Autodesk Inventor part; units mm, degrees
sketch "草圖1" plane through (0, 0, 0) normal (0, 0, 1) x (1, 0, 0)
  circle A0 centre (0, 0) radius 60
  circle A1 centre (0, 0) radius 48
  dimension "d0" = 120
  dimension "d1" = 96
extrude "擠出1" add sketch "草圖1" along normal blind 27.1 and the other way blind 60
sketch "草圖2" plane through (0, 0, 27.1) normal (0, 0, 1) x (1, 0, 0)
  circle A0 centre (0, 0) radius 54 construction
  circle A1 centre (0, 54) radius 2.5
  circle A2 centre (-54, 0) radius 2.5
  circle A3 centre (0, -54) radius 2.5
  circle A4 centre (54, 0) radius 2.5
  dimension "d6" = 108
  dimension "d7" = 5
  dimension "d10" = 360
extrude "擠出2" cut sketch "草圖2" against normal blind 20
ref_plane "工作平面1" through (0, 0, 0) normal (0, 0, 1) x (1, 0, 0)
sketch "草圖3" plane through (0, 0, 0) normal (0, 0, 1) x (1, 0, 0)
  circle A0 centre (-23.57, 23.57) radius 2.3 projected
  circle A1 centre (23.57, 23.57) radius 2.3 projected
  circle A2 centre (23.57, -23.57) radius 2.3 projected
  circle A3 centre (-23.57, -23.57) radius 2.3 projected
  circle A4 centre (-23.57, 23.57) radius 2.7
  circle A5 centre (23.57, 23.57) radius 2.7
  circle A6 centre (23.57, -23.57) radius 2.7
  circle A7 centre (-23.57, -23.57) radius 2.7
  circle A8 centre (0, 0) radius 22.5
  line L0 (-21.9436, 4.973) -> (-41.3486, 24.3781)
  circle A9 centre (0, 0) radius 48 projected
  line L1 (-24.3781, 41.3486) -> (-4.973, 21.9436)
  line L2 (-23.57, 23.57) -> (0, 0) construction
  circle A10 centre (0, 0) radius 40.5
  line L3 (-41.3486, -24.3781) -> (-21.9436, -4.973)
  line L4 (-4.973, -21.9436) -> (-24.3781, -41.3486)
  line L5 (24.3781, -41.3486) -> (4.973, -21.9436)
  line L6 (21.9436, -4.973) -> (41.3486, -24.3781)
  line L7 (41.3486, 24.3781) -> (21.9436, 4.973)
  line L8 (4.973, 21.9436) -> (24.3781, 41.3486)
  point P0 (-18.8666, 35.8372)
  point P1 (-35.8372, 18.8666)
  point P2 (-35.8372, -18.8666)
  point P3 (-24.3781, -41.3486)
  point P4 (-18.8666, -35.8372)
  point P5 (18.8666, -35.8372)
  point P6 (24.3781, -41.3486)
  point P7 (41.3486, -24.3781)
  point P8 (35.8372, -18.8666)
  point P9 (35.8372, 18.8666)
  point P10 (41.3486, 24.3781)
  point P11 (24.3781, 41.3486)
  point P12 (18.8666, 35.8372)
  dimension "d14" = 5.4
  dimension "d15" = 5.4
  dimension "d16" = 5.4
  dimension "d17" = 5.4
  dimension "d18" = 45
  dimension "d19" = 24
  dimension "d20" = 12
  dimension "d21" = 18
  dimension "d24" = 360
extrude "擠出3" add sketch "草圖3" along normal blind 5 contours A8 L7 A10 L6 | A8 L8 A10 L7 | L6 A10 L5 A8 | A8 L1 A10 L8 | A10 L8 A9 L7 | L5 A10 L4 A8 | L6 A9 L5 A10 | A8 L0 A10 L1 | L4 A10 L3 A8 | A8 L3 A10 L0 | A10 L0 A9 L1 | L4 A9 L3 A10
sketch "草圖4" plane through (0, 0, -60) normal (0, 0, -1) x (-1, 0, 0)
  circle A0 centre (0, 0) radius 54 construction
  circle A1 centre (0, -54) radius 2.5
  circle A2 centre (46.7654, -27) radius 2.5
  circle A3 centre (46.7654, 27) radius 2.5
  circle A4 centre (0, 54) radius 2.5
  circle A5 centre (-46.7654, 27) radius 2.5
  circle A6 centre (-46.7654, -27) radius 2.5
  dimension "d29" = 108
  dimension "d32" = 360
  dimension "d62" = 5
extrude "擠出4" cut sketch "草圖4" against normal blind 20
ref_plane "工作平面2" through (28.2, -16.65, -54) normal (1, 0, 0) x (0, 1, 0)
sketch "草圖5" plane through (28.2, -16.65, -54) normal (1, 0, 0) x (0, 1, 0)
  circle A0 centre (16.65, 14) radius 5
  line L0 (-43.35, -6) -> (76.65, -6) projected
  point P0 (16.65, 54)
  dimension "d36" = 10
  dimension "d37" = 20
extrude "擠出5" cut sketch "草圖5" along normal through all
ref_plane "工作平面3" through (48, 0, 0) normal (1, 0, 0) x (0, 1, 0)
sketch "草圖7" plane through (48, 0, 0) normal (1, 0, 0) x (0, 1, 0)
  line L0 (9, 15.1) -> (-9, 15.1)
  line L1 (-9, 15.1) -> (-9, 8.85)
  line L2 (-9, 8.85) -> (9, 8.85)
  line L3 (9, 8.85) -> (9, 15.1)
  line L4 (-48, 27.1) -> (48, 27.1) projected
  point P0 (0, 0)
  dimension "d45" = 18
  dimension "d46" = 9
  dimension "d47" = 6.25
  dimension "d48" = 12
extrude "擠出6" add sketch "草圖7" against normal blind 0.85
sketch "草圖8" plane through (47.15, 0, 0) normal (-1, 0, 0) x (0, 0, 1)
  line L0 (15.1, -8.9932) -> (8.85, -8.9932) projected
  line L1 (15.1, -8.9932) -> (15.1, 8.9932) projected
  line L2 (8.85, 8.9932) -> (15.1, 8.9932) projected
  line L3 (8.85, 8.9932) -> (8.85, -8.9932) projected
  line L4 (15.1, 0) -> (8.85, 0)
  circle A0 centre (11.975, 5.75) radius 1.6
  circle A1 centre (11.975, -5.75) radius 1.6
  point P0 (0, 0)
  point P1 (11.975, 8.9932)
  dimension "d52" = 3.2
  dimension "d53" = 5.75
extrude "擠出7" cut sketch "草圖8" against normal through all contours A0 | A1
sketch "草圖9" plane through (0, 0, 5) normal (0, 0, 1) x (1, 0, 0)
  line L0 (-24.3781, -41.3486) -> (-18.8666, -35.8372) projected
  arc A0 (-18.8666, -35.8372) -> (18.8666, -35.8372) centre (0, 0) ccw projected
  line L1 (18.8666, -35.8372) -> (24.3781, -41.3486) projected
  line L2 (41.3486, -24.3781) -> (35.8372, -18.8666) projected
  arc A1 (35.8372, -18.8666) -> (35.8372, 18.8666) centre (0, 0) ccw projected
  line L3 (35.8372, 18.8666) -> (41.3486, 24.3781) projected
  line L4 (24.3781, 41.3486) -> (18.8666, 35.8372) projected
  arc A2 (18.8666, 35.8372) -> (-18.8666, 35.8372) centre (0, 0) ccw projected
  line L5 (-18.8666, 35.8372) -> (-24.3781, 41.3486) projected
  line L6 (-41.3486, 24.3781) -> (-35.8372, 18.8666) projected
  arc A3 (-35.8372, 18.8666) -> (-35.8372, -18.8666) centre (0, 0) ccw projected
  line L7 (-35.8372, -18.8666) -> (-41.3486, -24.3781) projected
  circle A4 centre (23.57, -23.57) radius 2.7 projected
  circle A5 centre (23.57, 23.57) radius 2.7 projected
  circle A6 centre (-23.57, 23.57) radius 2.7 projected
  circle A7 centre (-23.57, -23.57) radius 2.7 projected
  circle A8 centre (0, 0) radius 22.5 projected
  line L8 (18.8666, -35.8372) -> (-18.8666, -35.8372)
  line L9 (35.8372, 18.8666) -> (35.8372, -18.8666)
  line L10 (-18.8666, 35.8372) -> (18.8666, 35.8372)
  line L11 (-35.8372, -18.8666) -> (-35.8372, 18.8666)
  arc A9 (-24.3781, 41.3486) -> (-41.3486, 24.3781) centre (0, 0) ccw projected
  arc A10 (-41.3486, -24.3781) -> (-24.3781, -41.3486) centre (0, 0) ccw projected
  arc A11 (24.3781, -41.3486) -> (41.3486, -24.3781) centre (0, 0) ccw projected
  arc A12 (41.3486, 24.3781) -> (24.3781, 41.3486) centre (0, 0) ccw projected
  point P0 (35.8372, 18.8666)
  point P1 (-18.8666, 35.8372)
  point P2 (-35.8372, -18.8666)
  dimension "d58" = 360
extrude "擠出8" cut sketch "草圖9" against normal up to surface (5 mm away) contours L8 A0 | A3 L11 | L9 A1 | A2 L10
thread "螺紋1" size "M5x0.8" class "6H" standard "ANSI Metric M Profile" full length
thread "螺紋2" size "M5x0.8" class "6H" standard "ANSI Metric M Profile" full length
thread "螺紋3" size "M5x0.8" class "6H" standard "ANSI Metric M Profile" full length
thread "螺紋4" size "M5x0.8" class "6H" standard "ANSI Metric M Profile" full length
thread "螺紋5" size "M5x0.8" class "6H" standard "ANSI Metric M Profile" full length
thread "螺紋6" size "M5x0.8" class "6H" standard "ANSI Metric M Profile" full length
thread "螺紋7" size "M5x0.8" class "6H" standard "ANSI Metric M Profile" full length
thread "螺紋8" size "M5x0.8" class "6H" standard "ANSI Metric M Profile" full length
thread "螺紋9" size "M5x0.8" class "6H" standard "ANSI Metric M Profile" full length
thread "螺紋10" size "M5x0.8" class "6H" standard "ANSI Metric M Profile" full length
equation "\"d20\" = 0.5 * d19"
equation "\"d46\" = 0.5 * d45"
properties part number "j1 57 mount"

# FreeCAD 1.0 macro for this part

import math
import FreeCAD as App
import Part
import Sketcher
from FreeCAD import Vector


def add_polygon(sketch, points):
    """Adds a closed chain of lines whose ends are joined by coincident constraints."""
    first, n = sketch.GeometryCount, len(points)
    for a, b in zip(points, points[1:] + points[:1]):
        sketch.addGeometry(Part.LineSegment(App.Vector(*a, 0), App.Vector(*b, 0)), False)
    for i in range(n):
        sketch.addConstraint(Sketcher.Constraint("Coincident", first + i, 2, first + (i + 1) % n, 1))

doc = App.newDocument("Part")
body = doc.addObject("PartDesign::Body", "Body")

# Sketch on XY plane
sketch1 = body.newObject("Sketcher::SketchObject", "Sketch")
sketch1.AttachmentSupport = (doc.getObject("XY_Plane"), [""])
sketch1.MapMode = "FlatFace"
sketch1.addGeometry([
    Part.Circle(Vector(0, 0, 0), Vector(0, 0, 1), 60),
    Part.Circle(Vector(0, 0, 0), Vector(0, 0, 1), 48),
], False)
sketch1.addConstraint([
    Sketcher.Constraint("Coincident", 0, 3, -1, 1),
    Sketcher.Constraint("Coincident", 1, 3, -1, 1),
    Sketcher.Constraint("Diameter", 0, 120.0),
    Sketcher.Constraint("Diameter", 1, 96.0),
])
pad1 = body.newObject("PartDesign::Pad", "Pad")
pad1.Profile = sketch1
pad1.Type = "TwoLengths"
pad1.Length = 27.1
pad1.Length2 = 60

# Sketch on XY plane
sketch2 = body.newObject("Sketcher::SketchObject", "Sketch001")
sketch2.AttachmentSupport = (doc.getObject("XY_Plane"), [""])
sketch2.MapMode = "FlatFace"
sketch2.AttachmentOffset = App.Placement(Vector(0, 0, 27.1), App.Rotation())
sketch2.addGeometry([
    Part.Circle(Vector(0, 54, 0), Vector(0, 0, 1), 2.5),
    Part.Circle(Vector(-54, 0, 0), Vector(0, 0, 1), 2.5),
    Part.Circle(Vector(0, -54, 0), Vector(0, 0, 1), 2.5),
    Part.Circle(Vector(54, 0, 0), Vector(0, 0, 1), 2.5),
], False)
sketch2.addConstraint([
    Sketcher.Constraint("Equal", 0, 1),
    Sketcher.Constraint("Equal", 1, 2),
    Sketcher.Constraint("Equal", 2, 3),
    Sketcher.Constraint("Symmetric", 0, 3, 2, 3, -1, 1),
    Sketcher.Constraint("Symmetric", 1, 3, 3, 3, -1, 1),
    Sketcher.Constraint("PointOnObject", 0, 3, -2),
    Sketcher.Constraint("PointOnObject", 1, 3, -1),
    Sketcher.Constraint("Diameter", 0, 5.0),
    Sketcher.Constraint("DistanceY", 2, 3, 0, 3, 108.0),
    Sketcher.Constraint("DistanceX", 1, 3, 3, 3, 108.0),
])
pocket1 = body.newObject("PartDesign::Pocket", "Pocket")
pocket1.Profile = sketch2
pocket1.Length = 20

# Sketch on XY plane
sketch3 = body.newObject("Sketcher::SketchObject", "Sketch002")
sketch3.AttachmentSupport = (doc.getObject("XY_Plane"), [""])
sketch3.MapMode = "FlatFace"
sketch3.addGeometry([
    Part.LineSegment(Vector(35.8, 18.9, 0), Vector(41.3, 24.4, 0)),  # 0
    Part.ArcOfCircle(Part.Circle(Vector(0, 0, 0), Vector(0, 0, 1), 48), math.radians(31), math.radians(59)),  # 1
    Part.LineSegment(Vector(24.4, 41.3, 0), Vector(18.9, 35.8, 0)),  # 2
    Part.ArcOfCircle(Part.Circle(Vector(0, 0, 0), Vector(0, 0, 1), 40.5), math.radians(62), math.radians(118)),  # 3
    Part.LineSegment(Vector(-18.9, 35.8, 0), Vector(-24.4, 41.3, 0)),  # 4
    Part.ArcOfCircle(Part.Circle(Vector(0, 0, 0), Vector(0, 0, 1), 48), math.radians(121), math.radians(149)),  # 5
    Part.LineSegment(Vector(-41.3, 24.4, 0), Vector(-35.8, 18.9, 0)),  # 6
    Part.ArcOfCircle(Part.Circle(Vector(0, 0, 0), Vector(0, 0, 1), 40.5), math.radians(152), math.radians(208)),  # 7
    Part.LineSegment(Vector(-35.8, -18.9, 0), Vector(-41.3, -24.4, 0)),  # 8
    Part.ArcOfCircle(Part.Circle(Vector(0, 0, 0), Vector(0, 0, 1), 48), math.radians(-149), math.radians(-121)),  # 9
    Part.LineSegment(Vector(-24.4, -41.3, 0), Vector(-18.9, -35.8, 0)),  # 10
    Part.ArcOfCircle(Part.Circle(Vector(0, 0, 0), Vector(0, 0, 1), 40.5), math.radians(-118), math.radians(-62)),  # 11
    Part.LineSegment(Vector(18.9, -35.8, 0), Vector(24.4, -41.3, 0)),  # 12
    Part.ArcOfCircle(Part.Circle(Vector(0, 0, 0), Vector(0, 0, 1), 48), math.radians(-59), math.radians(-31)),  # 13
    Part.LineSegment(Vector(41.3, -24.4, 0), Vector(35.8, -18.9, 0)),  # 14
    Part.ArcOfCircle(Part.Circle(Vector(0, 0, 0), Vector(0, 0, 1), 40.5), math.radians(-28), math.radians(28)),  # 15
    Part.Circle(Vector(0, 0, 0), Vector(0, 0, 1), 22.5),  # 16
    Part.Circle(Vector(23.6, 23.6, 0), Vector(0, 0, 1), 2.7),  # 17
    Part.Circle(Vector(23.6, -23.6, 0), Vector(0, 0, 1), 2.7),  # 18
    Part.Circle(Vector(-23.6, 23.6, 0), Vector(0, 0, 1), 2.7),  # 19
    Part.Circle(Vector(-23.6, -23.6, 0), Vector(0, 0, 1), 2.7),  # 20
], False)
sketch3.addConstraint([
    Sketcher.Constraint("Coincident", 0, 2, 1, 1),
    Sketcher.Constraint("Coincident", 1, 2, 2, 1),
    Sketcher.Constraint("Coincident", 2, 2, 3, 1),
    Sketcher.Constraint("Coincident", 3, 2, 4, 1),
    Sketcher.Constraint("Coincident", 4, 2, 5, 1),
    Sketcher.Constraint("Coincident", 5, 2, 6, 1),
    Sketcher.Constraint("Coincident", 6, 2, 7, 1),
    Sketcher.Constraint("Coincident", 7, 2, 8, 1),
    Sketcher.Constraint("Coincident", 8, 2, 9, 1),
    Sketcher.Constraint("Coincident", 9, 2, 10, 1),
    Sketcher.Constraint("Coincident", 10, 2, 11, 1),
    Sketcher.Constraint("Coincident", 11, 2, 12, 1),
    Sketcher.Constraint("Coincident", 12, 2, 13, 1),
    Sketcher.Constraint("Coincident", 13, 2, 14, 1),
    Sketcher.Constraint("Coincident", 14, 2, 15, 1),
    Sketcher.Constraint("Coincident", 15, 2, 0, 1),
    Sketcher.Constraint("Coincident", 1, 3, -1, 1),
    Sketcher.Constraint("Coincident", 3, 3, -1, 1),
    Sketcher.Constraint("Coincident", 5, 3, -1, 1),
    Sketcher.Constraint("Coincident", 7, 3, -1, 1),
    Sketcher.Constraint("Coincident", 9, 3, -1, 1),
    Sketcher.Constraint("Coincident", 11, 3, -1, 1),
    Sketcher.Constraint("Coincident", 13, 3, -1, 1),
    Sketcher.Constraint("Coincident", 15, 3, -1, 1),
    Sketcher.Constraint("Coincident", 16, 3, -1, 1),
    Sketcher.Constraint("Equal", 1, 5),
    Sketcher.Constraint("Equal", 3, 7),
    Sketcher.Constraint("Equal", 5, 9),
    Sketcher.Constraint("Equal", 7, 11),
    Sketcher.Constraint("Equal", 9, 13),
    Sketcher.Constraint("Equal", 11, 15),
    Sketcher.Constraint("Equal", 17, 18),
    Sketcher.Constraint("Equal", 18, 19),
    Sketcher.Constraint("Equal", 19, 20),
    Sketcher.Constraint("Symmetric", 18, 3, 19, 3, -1, 1),
    Sketcher.Constraint("Symmetric", 17, 3, 20, 3, -1, 1),
    Sketcher.Constraint("Symmetric", 17, 3, 19, 3, -2),
    Sketcher.Constraint("Parallel", 0, 2),
    Sketcher.Constraint("Perpendicular", 2, 4),
    Sketcher.Constraint("Parallel", 4, 6),
    Sketcher.Constraint("Perpendicular", 6, 8),
    Sketcher.Constraint("Parallel", 8, 10),
    Sketcher.Constraint("Perpendicular", 10, 12),
    Sketcher.Constraint("Parallel", 12, 14),
    Sketcher.Constraint("Horizontal", 2, 2, 3, 2),
    Sketcher.Constraint("Horizontal", 1, 2, 4, 2),
    Sketcher.Constraint("Horizontal", 0, 2, 5, 2),
    Sketcher.Constraint("Horizontal", 10, 2, 11, 2),
    Sketcher.Constraint("Horizontal", 8, 2, 13, 2),
    Sketcher.Constraint("Vertical", 6, 2, 7, 2),
    Sketcher.Constraint("Vertical", 4, 2, 9, 2),
    Sketcher.Constraint("Equal", 0, 2),
    Sketcher.Constraint("Diameter", 16, 45.0),
    Sketcher.Constraint("Diameter", 17, 5.4),
    Sketcher.Constraint("Radius", 1, 48.0),
    Sketcher.Constraint("Radius", 3, 40.5),
    Sketcher.Constraint("DistanceX", -1, 1, 17, 3, 23.57),
    Sketcher.Constraint("DistanceY", -1, 1, 17, 3, 23.57),
    Sketcher.Constraint("DistanceY", -1, 1, 0, 2, 24.378),
])
pad2 = body.newObject("PartDesign::Pad", "Pad001")
pad2.Profile = sketch3
pad2.Length = 5

# Sketch on XY plane
sketch4 = body.newObject("Sketcher::SketchObject", "Sketch003")
sketch4.AttachmentSupport = (doc.getObject("XY_Plane"), [""])
sketch4.MapMode = "FlatFace"
sketch4.AttachmentOffset = App.Placement(Vector(0, 0, -60), App.Rotation())
sketch4.addGeometry([
    Part.Circle(Vector(0, -54, 0), Vector(0, 0, 1), 2.5),  # 0
    Part.Circle(Vector(-46.8, -27, 0), Vector(0, 0, 1), 2.5),  # 1
    Part.Circle(Vector(-46.8, 27, 0), Vector(0, 0, 1), 2.5),  # 2
    Part.Circle(Vector(0, 54, 0), Vector(0, 0, 1), 2.5),  # 3
    Part.Circle(Vector(46.8, 27, 0), Vector(0, 0, 1), 2.5),  # 4
    Part.Circle(Vector(46.8, -27, 0), Vector(0, 0, 1), 2.5),  # 5
], False)
sketch4.addConstraint([
    Sketcher.Constraint("Equal", 0, 1),
    Sketcher.Constraint("Equal", 1, 2),
    Sketcher.Constraint("Equal", 2, 3),
    Sketcher.Constraint("Equal", 3, 4),
    Sketcher.Constraint("Equal", 4, 5),
    Sketcher.Constraint("Symmetric", 0, 3, 3, 3, -1, 1),
    Sketcher.Constraint("Symmetric", 1, 3, 4, 3, -1, 1),
    Sketcher.Constraint("Symmetric", 2, 3, 5, 3, -1, 1),
    Sketcher.Constraint("Symmetric", 2, 3, 4, 3, -2),
    Sketcher.Constraint("PointOnObject", 0, 3, -2),
    Sketcher.Constraint("Diameter", 0, 5.0),
    Sketcher.Constraint("DistanceY", 0, 3, 3, 3, 108.0),
    Sketcher.Constraint("DistanceY", 1, 3, -1, 1, 27.0),
    Sketcher.Constraint("DistanceX", 1, 3, -1, 1, 46.7654),
])
pocket2 = body.newObject("PartDesign::Pocket", "Pocket001")
pocket2.Profile = sketch4
pocket2.Length = 20
pocket2.Reversed = True

# Sketch on YZ plane
sketch5 = body.newObject("Sketcher::SketchObject", "Sketch004")
sketch5.AttachmentSupport = (doc.getObject("YZ_Plane"), [""])
sketch5.MapMode = "FlatFace"
sketch5.AttachmentOffset = App.Placement(Vector(0, 0, 28.2), App.Rotation())
sketch5.addGeometry(Part.Circle(Vector(0, -40, 0), Vector(0, 0, 1), 5), False)
sketch5.addConstraint([
    Sketcher.Constraint("PointOnObject", 0, 3, -2),
    Sketcher.Constraint("Diameter", 0, 10.0),
    Sketcher.Constraint("DistanceY", 0, 3, -1, 1, 40.0),
])
pocket3 = body.newObject("PartDesign::Pocket", "Pocket002")
pocket3.Profile = sketch5
pocket3.Type = "ThroughAll"
pocket3.Reversed = True

# Sketch on YZ plane
sketch6 = body.newObject("Sketcher::SketchObject", "Sketch005")
sketch6.AttachmentSupport = (doc.getObject("YZ_Plane"), [""])
sketch6.MapMode = "FlatFace"
sketch6.AttachmentOffset = App.Placement(Vector(0, 0, 48), App.Rotation())
add_polygon(sketch6, [(9, 9), (9, 15), (-9, 15), (-9, 9)])  # lines 0-3
sketch6.addConstraint([
    Sketcher.Constraint("Vertical", 0),
    Sketcher.Constraint("Horizontal", 1),
    Sketcher.Constraint("Vertical", 2),
    Sketcher.Constraint("Horizontal", 3),
    Sketcher.Constraint("DistanceX", 1, 2, 1, 1, 18.0),
    Sketcher.Constraint("DistanceX", -1, 1, 0, 2, 9.0),
    Sketcher.Constraint("DistanceY", 0, 1, 0, 2, 6.25),
    Sketcher.Constraint("DistanceY", -1, 1, 0, 2, 15.1),
])
pad3 = body.newObject("PartDesign::Pad", "Pad002")
pad3.Profile = sketch6
pad3.Length = 0.85
pad3.Reversed = True

# Sketch on YZ plane
sketch7 = body.newObject("Sketcher::SketchObject", "Sketch006")
sketch7.AttachmentSupport = (doc.getObject("YZ_Plane"), [""])
sketch7.MapMode = "FlatFace"
sketch7.AttachmentOffset = App.Placement(Vector(0, 0, 47.15), App.Rotation())
sketch7.addGeometry([
    Part.Circle(Vector(5.8, 12, 0), Vector(0, 0, 1), 1.6),
    Part.Circle(Vector(-5.8, 12, 0), Vector(0, 0, 1), 1.6),
], False)
sketch7.addConstraint([
    Sketcher.Constraint("Equal", 0, 1),
    Sketcher.Constraint("Symmetric", 0, 3, 1, 3, -2),
    Sketcher.Constraint("Diameter", 0, 3.2),
    Sketcher.Constraint("DistanceX", -1, 1, 0, 3, 5.75),
    Sketcher.Constraint("DistanceY", -1, 1, 0, 3, 11.975),
])
pocket4 = body.newObject("PartDesign::Pocket", "Pocket003")
pocket4.Profile = sketch7
pocket4.Type = "ThroughAll"
pocket4.Reversed = True

# Sketch on XY plane
sketch8 = body.newObject("Sketcher::SketchObject", "Sketch007")
sketch8.AttachmentSupport = (doc.getObject("XY_Plane"), [""])
sketch8.MapMode = "FlatFace"
sketch8.AttachmentOffset = App.Placement(Vector(0, 0, 5), App.Rotation())
sketch8.addGeometry([
    Part.LineSegment(Vector(19, -36, 0), Vector(-19, -36, 0)),  # 0
    Part.ArcOfCircle(Part.Circle(Vector(0, 0, 0), Vector(0, 0, 1), 41), math.radians(-118), math.radians(-62)),  # 1
    Part.ArcOfCircle(Part.Circle(Vector(0, 0, 0), Vector(0, 0, 1), 41), math.radians(152), math.radians(208)),  # 2
    Part.LineSegment(Vector(-36, -19, 0), Vector(-36, 19, 0)),  # 3
    Part.LineSegment(Vector(36, 19, 0), Vector(36, -19, 0)),  # 4
    Part.ArcOfCircle(Part.Circle(Vector(0, 0, 0), Vector(0, 0, 1), 41), math.radians(-28), math.radians(28)),  # 5
    Part.ArcOfCircle(Part.Circle(Vector(0, 0, 0), Vector(0, 0, 1), 41), math.radians(62), math.radians(118)),  # 6
    Part.LineSegment(Vector(-19, 36, 0), Vector(19, 36, 0)),  # 7
], False)
sketch8.addConstraint([
    Sketcher.Constraint("Coincident", 0, 1, 1, 2),
    Sketcher.Constraint("Coincident", 1, 1, 0, 2),
    Sketcher.Constraint("Coincident", 2, 1, 3, 2),
    Sketcher.Constraint("Coincident", 3, 1, 2, 2),
    Sketcher.Constraint("Coincident", 4, 1, 5, 2),
    Sketcher.Constraint("Coincident", 5, 1, 4, 2),
    Sketcher.Constraint("Coincident", 6, 1, 7, 2),
    Sketcher.Constraint("Coincident", 7, 1, 6, 2),
    Sketcher.Constraint("Horizontal", 0),
    Sketcher.Constraint("Vertical", 3),
    Sketcher.Constraint("Vertical", 4),
    Sketcher.Constraint("Horizontal", 7),
    Sketcher.Constraint("Coincident", 1, 3, -1, 1),
    Sketcher.Constraint("Coincident", 2, 3, -1, 1),
    Sketcher.Constraint("Coincident", 5, 3, -1, 1),
    Sketcher.Constraint("Coincident", 6, 3, -1, 1),
    Sketcher.Constraint("Equal", 1, 2),
    Sketcher.Constraint("Equal", 2, 5),
    Sketcher.Constraint("Equal", 5, 6),
    Sketcher.Constraint("Horizontal", 2, 1, 4, 1),
    Sketcher.Constraint("Vertical", 0, 1, 6, 1),
    Sketcher.Constraint("Equal", 7, 3),
    Sketcher.Constraint("Radius", 1, 40.5),
    Sketcher.Constraint("DistanceX", 0, 2, 0, 1, 37.7332),
])
pocket5 = body.newObject("PartDesign::Pocket", "Pocket004")
pocket5.Profile = sketch8
pocket5.Length = 5

doc.recompute()
